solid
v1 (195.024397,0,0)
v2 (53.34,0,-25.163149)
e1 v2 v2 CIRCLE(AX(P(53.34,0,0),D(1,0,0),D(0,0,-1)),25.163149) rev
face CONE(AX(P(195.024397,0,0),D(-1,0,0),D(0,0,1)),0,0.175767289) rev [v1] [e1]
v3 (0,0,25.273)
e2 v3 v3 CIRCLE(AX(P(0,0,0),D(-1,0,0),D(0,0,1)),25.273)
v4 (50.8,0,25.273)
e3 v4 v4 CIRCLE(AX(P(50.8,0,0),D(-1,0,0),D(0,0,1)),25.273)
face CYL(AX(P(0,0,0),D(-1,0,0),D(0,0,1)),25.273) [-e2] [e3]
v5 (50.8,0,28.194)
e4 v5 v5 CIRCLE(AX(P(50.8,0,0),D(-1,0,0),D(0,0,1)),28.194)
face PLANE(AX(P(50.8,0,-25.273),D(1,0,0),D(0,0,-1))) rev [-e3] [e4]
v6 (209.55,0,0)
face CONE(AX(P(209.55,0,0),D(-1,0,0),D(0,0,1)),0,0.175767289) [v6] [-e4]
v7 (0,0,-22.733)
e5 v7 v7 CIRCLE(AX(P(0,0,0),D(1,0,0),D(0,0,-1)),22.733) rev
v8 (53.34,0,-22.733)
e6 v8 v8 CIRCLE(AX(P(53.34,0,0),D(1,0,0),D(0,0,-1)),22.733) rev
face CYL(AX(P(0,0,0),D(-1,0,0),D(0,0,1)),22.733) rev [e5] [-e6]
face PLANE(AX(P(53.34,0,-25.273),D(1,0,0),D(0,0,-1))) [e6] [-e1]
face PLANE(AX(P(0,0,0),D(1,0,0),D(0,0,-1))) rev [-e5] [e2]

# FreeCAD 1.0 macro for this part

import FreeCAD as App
import Part
import Sketcher
Q = App.Units.Quantity


def faces_at(feature, points):
    """Names of the faces that lie closest to the given points."""
    faces = feature.Shape.Faces
    near = lambda p: min(range(len(faces)), key=lambda i: faces[i].distToShape(Part.Vertex(*p))[0])
    return sorted({f"Face{near(p) + 1}" for p in points})

doc = App.newDocument("Part")
body = doc.addObject("PartDesign::Body", "Body")

# Sketch on XZ plane
sketch1 = doc.addObject("Sketcher::SketchObject", "Sketch")
body.addObject(sketch1)
sketch1.AttachmentSupport = (doc.XZ_Plane, [""])
sketch1.MapMode = "FlatFace"
sketch1.addGeometry([
    Part.LineSegment(App.Vector(0, -25.3, 0), App.Vector(0, 0, 0)),  # 0
    Part.LineSegment(App.Vector(0, 0, 0), App.Vector(209.6, 0, 0)),  # 1
    Part.LineSegment(App.Vector(209.6, 0, 0), App.Vector(50.8, -28.2, 0)),  # 2
    Part.LineSegment(App.Vector(50.8, -28.2, 0), App.Vector(50.8, -25.3, 0)),  # 3
    Part.LineSegment(App.Vector(50.8, -25.3, 0), App.Vector(0, -25.3, 0)),  # 4
], False)
sketch1.addConstraint([
    Sketcher.Constraint("Coincident", 0, 2, 1, 1),
    Sketcher.Constraint("Coincident", 1, 2, 2, 1),
    Sketcher.Constraint("Coincident", 2, 2, 3, 1),
    Sketcher.Constraint("Coincident", 3, 2, 4, 1),
    Sketcher.Constraint("Coincident", 4, 2, 0, 1),
    Sketcher.Constraint("Vertical", 0),
    Sketcher.Constraint("Horizontal", 1),
    Sketcher.Constraint("Vertical", 3),
    Sketcher.Constraint("Horizontal", 4),
    Sketcher.Constraint("Coincident", 0, 2, -1, 1),
    Sketcher.Constraint("DistanceX", 4, 2, 4, 1, Q("2 in")),
    Sketcher.Constraint("DistanceX", 1, 1, 1, 2, Q("8.25 in")),
    Sketcher.Constraint("DistanceY", 0, 1, 0, 2, Q("0.995 in")),
    Sketcher.Constraint("DistanceY", 3, 1, 3, 2, Q("0.115 in")),
])
revolution = doc.addObject("PartDesign::Revolution", "Revolution")
body.addObject(revolution)
revolution.Profile = sketch1
revolution.ReferenceAxis = (sketch1, ["H_Axis"])
revolution.Angle = 360
doc.recompute()

thickness = doc.addObject("PartDesign::Thickness", "Thickness")
body.addObject(thickness)
thickness.Base = (revolution, faces_at(revolution, [(0, 0, 0)]))
thickness.Value = Q("0.1 in")
thickness.Reversed = True
thickness.Join = "Intersection"

doc.recompute()
